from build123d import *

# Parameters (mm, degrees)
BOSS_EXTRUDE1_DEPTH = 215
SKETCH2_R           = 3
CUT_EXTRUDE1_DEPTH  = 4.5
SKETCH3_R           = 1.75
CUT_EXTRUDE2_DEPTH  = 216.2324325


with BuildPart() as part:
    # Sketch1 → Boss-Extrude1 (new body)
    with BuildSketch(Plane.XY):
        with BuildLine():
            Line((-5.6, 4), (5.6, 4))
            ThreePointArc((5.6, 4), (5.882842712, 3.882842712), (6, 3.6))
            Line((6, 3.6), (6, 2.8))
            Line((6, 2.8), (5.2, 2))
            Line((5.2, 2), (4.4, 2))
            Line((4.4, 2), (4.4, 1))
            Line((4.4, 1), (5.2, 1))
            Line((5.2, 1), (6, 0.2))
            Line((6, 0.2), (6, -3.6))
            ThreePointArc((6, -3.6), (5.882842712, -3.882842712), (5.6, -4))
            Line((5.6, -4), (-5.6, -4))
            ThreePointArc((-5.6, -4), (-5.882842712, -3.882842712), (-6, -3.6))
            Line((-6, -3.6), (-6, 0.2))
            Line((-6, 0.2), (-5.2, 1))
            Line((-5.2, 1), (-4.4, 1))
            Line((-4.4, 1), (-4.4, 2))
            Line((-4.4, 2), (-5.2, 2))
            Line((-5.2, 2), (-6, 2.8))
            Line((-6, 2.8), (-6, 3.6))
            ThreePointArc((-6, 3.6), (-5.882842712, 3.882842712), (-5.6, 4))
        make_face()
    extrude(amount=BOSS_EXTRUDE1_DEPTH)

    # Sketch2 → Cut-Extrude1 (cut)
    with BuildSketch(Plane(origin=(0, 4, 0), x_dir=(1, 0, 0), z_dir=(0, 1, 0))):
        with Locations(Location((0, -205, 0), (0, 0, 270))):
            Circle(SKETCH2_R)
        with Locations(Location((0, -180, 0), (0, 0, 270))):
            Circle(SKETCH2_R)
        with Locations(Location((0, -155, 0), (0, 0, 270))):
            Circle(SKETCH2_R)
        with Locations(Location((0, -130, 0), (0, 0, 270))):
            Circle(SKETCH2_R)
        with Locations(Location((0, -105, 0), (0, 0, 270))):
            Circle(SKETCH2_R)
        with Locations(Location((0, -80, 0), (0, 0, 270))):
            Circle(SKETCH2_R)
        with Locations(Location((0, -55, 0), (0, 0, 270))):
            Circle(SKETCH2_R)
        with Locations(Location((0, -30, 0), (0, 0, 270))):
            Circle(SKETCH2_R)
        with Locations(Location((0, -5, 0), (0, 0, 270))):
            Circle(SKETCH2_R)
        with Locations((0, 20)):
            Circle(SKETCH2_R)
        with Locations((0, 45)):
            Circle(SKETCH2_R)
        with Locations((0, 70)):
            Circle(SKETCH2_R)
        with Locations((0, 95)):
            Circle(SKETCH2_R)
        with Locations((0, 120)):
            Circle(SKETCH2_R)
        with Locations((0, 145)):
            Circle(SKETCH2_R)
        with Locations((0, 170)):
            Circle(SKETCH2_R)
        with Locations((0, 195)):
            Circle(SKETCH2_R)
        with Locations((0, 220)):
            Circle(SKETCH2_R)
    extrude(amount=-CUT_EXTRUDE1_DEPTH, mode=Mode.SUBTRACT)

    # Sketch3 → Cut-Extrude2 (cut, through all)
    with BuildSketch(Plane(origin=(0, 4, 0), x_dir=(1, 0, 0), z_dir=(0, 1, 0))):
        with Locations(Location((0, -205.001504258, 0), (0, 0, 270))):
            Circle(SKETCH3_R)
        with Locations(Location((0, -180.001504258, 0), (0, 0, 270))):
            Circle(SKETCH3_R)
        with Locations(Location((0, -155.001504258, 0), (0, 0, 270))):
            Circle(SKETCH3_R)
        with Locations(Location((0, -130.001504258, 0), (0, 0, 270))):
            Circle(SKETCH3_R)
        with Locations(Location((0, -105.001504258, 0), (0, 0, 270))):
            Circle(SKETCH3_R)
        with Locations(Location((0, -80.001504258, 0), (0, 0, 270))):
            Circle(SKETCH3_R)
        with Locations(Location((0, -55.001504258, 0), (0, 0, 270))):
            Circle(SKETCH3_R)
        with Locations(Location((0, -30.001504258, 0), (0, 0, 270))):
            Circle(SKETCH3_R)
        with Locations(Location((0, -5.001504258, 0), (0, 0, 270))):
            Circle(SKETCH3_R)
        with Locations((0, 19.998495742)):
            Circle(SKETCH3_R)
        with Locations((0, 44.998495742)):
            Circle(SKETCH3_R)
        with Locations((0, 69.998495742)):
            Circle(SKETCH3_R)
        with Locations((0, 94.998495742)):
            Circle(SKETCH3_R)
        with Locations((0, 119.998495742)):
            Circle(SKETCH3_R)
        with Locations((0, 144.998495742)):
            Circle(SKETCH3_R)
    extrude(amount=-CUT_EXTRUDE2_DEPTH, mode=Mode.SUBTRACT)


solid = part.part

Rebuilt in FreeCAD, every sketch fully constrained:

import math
import FreeCAD as App
import Part
import Sketcher
Q = App.Units.Quantity

doc = App.newDocument("Part")
params = doc.addObject("Spreadsheet::Sheet", "Params")
for row, (alias, value) in enumerate([
    ("sketch1_radius", "0.4 mm"),
    ("sketch1_height", "1 mm"),
    ("sketch1_width", "11.2 mm"),
    ("sketch1_width2", "0.8 mm"),
    ("sketch1_height2", "3.8 mm"),
    ("pad1_length", "215 mm"),
    ("sketch2_diameter", "6 mm"),
    ("pocket1_length", "4.5 mm"),
    ("sketch3_diameter", "3.5 mm"),
], start=1):
    params.set(f"A{row}", alias)
    params.set(f"B{row}", "=" + value)
    params.setAlias(f"B{row}", alias)

body = doc.addObject("PartDesign::Body", "Body")

sketch1 = body.newObject("Sketcher::SketchObject", "Sketch")
sketch1.AttachmentSupport = (doc.getObject("XY_Plane"), [""])
sketch1.MapMode = "FlatFace"
sketch1.addGeometry(Part.LineSegment(App.Vector(5.6, 4, 0), App.Vector(-5.6, 4, 0)), False)
sketch1.addGeometry(Part.ArcOfCircle(Part.Circle(App.Vector(-5.6, 3.6, 0), App.Vector(0, 0, 1), 0.4), math.radians(90), math.radians(180)), False)
sketch1.addGeometry(Part.LineSegment(App.Vector(-6, 3.6, 0), App.Vector(-6, 2.8, 0)), False)
sketch1.addGeometry(Part.LineSegment(App.Vector(-6, 2.8, 0), App.Vector(-5.2, 2, 0)), False)
sketch1.addGeometry(Part.LineSegment(App.Vector(-5.2, 2, 0), App.Vector(-4.4, 2, 0)), False)
sketch1.addGeometry(Part.LineSegment(App.Vector(-4.4, 2, 0), App.Vector(-4.4, 1, 0)), False)
sketch1.addGeometry(Part.LineSegment(App.Vector(-4.4, 1, 0), App.Vector(-5.2, 1, 0)), False)
sketch1.addGeometry(Part.LineSegment(App.Vector(-5.2, 1, 0), App.Vector(-6, 0.2, 0)), False)
sketch1.addGeometry(Part.LineSegment(App.Vector(-6, 0.2, 0), App.Vector(-6, -3.6, 0)), False)
sketch1.addGeometry(Part.ArcOfCircle(Part.Circle(App.Vector(-5.6, -3.6, 0), App.Vector(0, 0, 1), 0.4), math.radians(-180), math.radians(-90)), False)
sketch1.addGeometry(Part.LineSegment(App.Vector(-5.6, -4, 0), App.Vector(5.6, -4, 0)), False)
sketch1.addGeometry(Part.ArcOfCircle(Part.Circle(App.Vector(5.6, -3.6, 0), App.Vector(0, 0, 1), 0.4), math.radians(-90), math.radians(0)), False)
sketch1.addGeometry(Part.LineSegment(App.Vector(6, -3.6, 0), App.Vector(6, 0.2, 0)), False)
sketch1.addGeometry(Part.LineSegment(App.Vector(6, 0.2, 0), App.Vector(5.2, 1, 0)), False)
sketch1.addGeometry(Part.LineSegment(App.Vector(5.2, 1, 0), App.Vector(4.4, 1, 0)), False)
sketch1.addGeometry(Part.LineSegment(App.Vector(4.4, 1, 0), App.Vector(4.4, 2, 0)), False)
sketch1.addGeometry(Part.LineSegment(App.Vector(4.4, 2, 0), App.Vector(5.2, 2, 0)), False)
sketch1.addGeometry(Part.LineSegment(App.Vector(5.2, 2, 0), App.Vector(6, 2.8, 0)), False)
sketch1.addGeometry(Part.LineSegment(App.Vector(6, 2.8, 0), App.Vector(6, 3.6, 0)), False)
sketch1.addGeometry(Part.ArcOfCircle(Part.Circle(App.Vector(5.6, 3.6, 0), App.Vector(0, 0, 1), 0.4), math.radians(0), math.radians(90)), False)
sketch1.addConstraint(Sketcher.Constraint("Tangent", 0, 2, 1, 1))
sketch1.addConstraint(Sketcher.Constraint("Tangent", 1, 2, 2, 1))
sketch1.addConstraint(Sketcher.Constraint("Coincident", 2, 2, 3, 1))
sketch1.addConstraint(Sketcher.Constraint("Coincident", 3, 2, 4, 1))
sketch1.addConstraint(Sketcher.Constraint("Coincident", 4, 2, 5, 1))
sketch1.addConstraint(Sketcher.Constraint("Coincident", 5, 2, 6, 1))
sketch1.addConstraint(Sketcher.Constraint("Coincident", 6, 2, 7, 1))
sketch1.addConstraint(Sketcher.Constraint("Coincident", 7, 2, 8, 1))
sketch1.addConstraint(Sketcher.Constraint("Tangent", 8, 2, 9, 1))
sketch1.addConstraint(Sketcher.Constraint("Tangent", 9, 2, 10, 1))
sketch1.addConstraint(Sketcher.Constraint("Tangent", 10, 2, 11, 1))
sketch1.addConstraint(Sketcher.Constraint("Tangent", 11, 2, 12, 1))
sketch1.addConstraint(Sketcher.Constraint("Coincident", 12, 2, 13, 1))
sketch1.addConstraint(Sketcher.Constraint("Coincident", 13, 2, 14, 1))
sketch1.addConstraint(Sketcher.Constraint("Coincident", 14, 2, 15, 1))
sketch1.addConstraint(Sketcher.Constraint("Coincident", 15, 2, 16, 1))
sketch1.addConstraint(Sketcher.Constraint("Coincident", 16, 2, 17, 1))
sketch1.addConstraint(Sketcher.Constraint("Coincident", 17, 2, 18, 1))
sketch1.addConstraint(Sketcher.Constraint("Tangent", 18, 2, 19, 1))
sketch1.addConstraint(Sketcher.Constraint("Tangent", 19, 2, 0, 1))
sketch1.addConstraint(Sketcher.Constraint("Horizontal", 0))
sketch1.addConstraint(Sketcher.Constraint("Vertical", 2))
sketch1.addConstraint(Sketcher.Constraint("Horizontal", 4))
sketch1.addConstraint(Sketcher.Constraint("Vertical", 5))
sketch1.addConstraint(Sketcher.Constraint("Horizontal", 6))
sketch1.addConstraint(Sketcher.Constraint("Vertical", 8))
sketch1.addConstraint(Sketcher.Constraint("Horizontal", 10))
sketch1.addConstraint(Sketcher.Constraint("Vertical", 12))
sketch1.addConstraint(Sketcher.Constraint("Horizontal", 14))
sketch1.addConstraint(Sketcher.Constraint("Vertical", 15))
sketch1.addConstraint(Sketcher.Constraint("Horizontal", 16))
sketch1.addConstraint(Sketcher.Constraint("Vertical", 18))
sketch1.addConstraint(Sketcher.Constraint("Equal", 1, 9))
sketch1.addConstraint(Sketcher.Constraint("Equal", 9, 11))
sketch1.addConstraint(Sketcher.Constraint("Equal", 11, 19))
sketch1.addConstraint(Sketcher.Constraint("Symmetric", 1, 3, 11, 3, -1, 1))
sketch1.addConstraint(Sketcher.Constraint("Symmetric", 7, 2, 12, 2, -2))
sketch1.addConstraint(Sketcher.Constraint("Symmetric", 6, 2, 13, 2, -2))
sketch1.addConstraint(Sketcher.Constraint("Symmetric", 4, 2, 15, 2, -2))
sketch1.addConstraint(Sketcher.Constraint("Symmetric", 2, 2, 17, 2, -2))
sketch1.addConstraint(Sketcher.Constraint("Perpendicular", 3, 7))
sketch1.addConstraint(Sketcher.Constraint("Perpendicular", 7, 13))
sketch1.addConstraint(Sketcher.Constraint("Perpendicular", 13, 17))
sketch1.addConstraint(Sketcher.Constraint("Vertical", 3, 2, 6, 2))
sketch1.addConstraint(Sketcher.Constraint("Equal", 16, 2))
sketch1.addConstraint(Sketcher.Constraint("Radius", 1, Q("0.4 mm")))
sketch1.addConstraint(Sketcher.Constraint("DistanceY", 5, 2, 5, 1, Q("1 mm")))
sketch1.addConstraint(Sketcher.Constraint("DistanceX", 0, 2, 0, 1, Q("11.2 mm")))
sketch1.addConstraint(Sketcher.Constraint("DistanceX", 4, 1, 4, 2, Q("0.8 mm")))
sketch1.addConstraint(Sketcher.Constraint("DistanceY", 8, 2, 8, 1, Q("3.8 mm")))
sketch1.addConstraint(Sketcher.Constraint("DistanceY", -1, 1, 0, 2, Q("4 mm")))
sketch1.setExpression("Constraints[45]", "Params.sketch1_radius")
sketch1.setExpression("Constraints[46]", "Params.sketch1_height")
sketch1.setExpression("Constraints[47]", "Params.sketch1_width")
sketch1.setExpression("Constraints[48]", "Params.sketch1_width2")
sketch1.setExpression("Constraints[49]", "Params.sketch1_height2")
pad1 = body.newObject("PartDesign::Pad", "Pad")
pad1.Profile = sketch1
pad1.setExpression("Length", "Params.pad1_length")

sketch2 = body.newObject("Sketcher::SketchObject", "Sketch001")
sketch2.AttachmentSupport = (doc.getObject("XZ_Plane"), [""])
sketch2.MapMode = "FlatFace"
sketch2.AttachmentOffset = App.Placement(App.Vector(0, 0, -4), App.Rotation())
sketch2.addGeometry(Part.Circle(App.Vector(0, 205, 0), App.Vector(0, 0, 1), 3), False)
sketch2.addGeometry(Part.Circle(App.Vector(0, 180, 0), App.Vector(0, 0, 1), 3), False)
sketch2.addGeometry(Part.Circle(App.Vector(0, 155, 0), App.Vector(0, 0, 1), 3), False)
sketch2.addGeometry(Part.Circle(App.Vector(0, 130, 0), App.Vector(0, 0, 1), 3), False)
sketch2.addGeometry(Part.Circle(App.Vector(0, 105, 0), App.Vector(0, 0, 1), 3), False)
sketch2.addGeometry(Part.Circle(App.Vector(0, 80, 0), App.Vector(0, 0, 1), 3), False)
sketch2.addGeometry(Part.Circle(App.Vector(0, 55, 0), App.Vector(0, 0, 1), 3), False)
sketch2.addGeometry(Part.Circle(App.Vector(0, 30, 0), App.Vector(0, 0, 1), 3), False)
sketch2.addGeometry(Part.Circle(App.Vector(0, 5, 0), App.Vector(0, 0, 1), 3), False)
sketch2.addGeometry(Part.Circle(App.Vector(0, -20, 0), App.Vector(0, 0, 1), 3), False)
sketch2.addGeometry(Part.Circle(App.Vector(0, -45, 0), App.Vector(0, 0, 1), 3), False)
sketch2.addGeometry(Part.Circle(App.Vector(0, -70, 0), App.Vector(0, 0, 1), 3), False)
sketch2.addGeometry(Part.Circle(App.Vector(0, -95, 0), App.Vector(0, 0, 1), 3), False)
sketch2.addGeometry(Part.Circle(App.Vector(0, -120, 0), App.Vector(0, 0, 1), 3), False)
sketch2.addGeometry(Part.Circle(App.Vector(0, -145, 0), App.Vector(0, 0, 1), 3), False)
sketch2.addGeometry(Part.Circle(App.Vector(0, -170, 0), App.Vector(0, 0, 1), 3), False)
sketch2.addGeometry(Part.Circle(App.Vector(0, -195, 0), App.Vector(0, 0, 1), 3), False)
sketch2.addGeometry(Part.Circle(App.Vector(0, -220, 0), App.Vector(0, 0, 1), 3), False)
sketch2.addConstraint(Sketcher.Constraint("Equal", 0, 1))
sketch2.addConstraint(Sketcher.Constraint("Equal", 1, 2))
sketch2.addConstraint(Sketcher.Constraint("Equal", 2, 3))
sketch2.addConstraint(Sketcher.Constraint("Equal", 3, 4))
sketch2.addConstraint(Sketcher.Constraint("Equal", 4, 5))
sketch2.addConstraint(Sketcher.Constraint("Equal", 5, 6))
sketch2.addConstraint(Sketcher.Constraint("Equal", 6, 7))
sketch2.addConstraint(Sketcher.Constraint("Equal", 7, 8))
sketch2.addConstraint(Sketcher.Constraint("Equal", 8, 9))
sketch2.addConstraint(Sketcher.Constraint("Equal", 9, 10))
sketch2.addConstraint(Sketcher.Constraint("Equal", 10, 11))
sketch2.addConstraint(Sketcher.Constraint("Equal", 11, 12))
sketch2.addConstraint(Sketcher.Constraint("Equal", 12, 13))
sketch2.addConstraint(Sketcher.Constraint("Equal", 13, 14))
sketch2.addConstraint(Sketcher.Constraint("Equal", 14, 15))
sketch2.addConstraint(Sketcher.Constraint("Equal", 15, 16))
sketch2.addConstraint(Sketcher.Constraint("Equal", 16, 17))
sketch2.addConstraint(Sketcher.Constraint("PointOnObject", 0, 3, -2))
sketch2.addConstraint(Sketcher.Constraint("PointOnObject", 1, 3, -2))
sketch2.addConstraint(Sketcher.Constraint("PointOnObject", 2, 3, -2))
sketch2.addConstraint(Sketcher.Constraint("PointOnObject", 3, 3, -2))
sketch2.addConstraint(Sketcher.Constraint("PointOnObject", 4, 3, -2))
sketch2.addConstraint(Sketcher.Constraint("PointOnObject", 5, 3, -2))
sketch2.addConstraint(Sketcher.Constraint("PointOnObject", 6, 3, -2))
sketch2.addConstraint(Sketcher.Constraint("PointOnObject", 7, 3, -2))
sketch2.addConstraint(Sketcher.Constraint("PointOnObject", 8, 3, -2))
sketch2.addConstraint(Sketcher.Constraint("PointOnObject", 9, 3, -2))
sketch2.addConstraint(Sketcher.Constraint("PointOnObject", 10, 3, -2))
sketch2.addConstraint(Sketcher.Constraint("PointOnObject", 11, 3, -2))
sketch2.addConstraint(Sketcher.Constraint("PointOnObject", 12, 3, -2))
sketch2.addConstraint(Sketcher.Constraint("PointOnObject", 13, 3, -2))
sketch2.addConstraint(Sketcher.Constraint("PointOnObject", 14, 3, -2))
sketch2.addConstraint(Sketcher.Constraint("PointOnObject", 15, 3, -2))
sketch2.addConstraint(Sketcher.Constraint("PointOnObject", 16, 3, -2))
sketch2.addConstraint(Sketcher.Constraint("PointOnObject", 17, 3, -2))
sketch2.addConstraint(Sketcher.Constraint("Diameter", 0, Q("6 mm")))
sketch2.addConstraint(Sketcher.Constraint("DistanceY", -1, 1, 0, 3, Q("205 mm")))
sketch2.addConstraint(Sketcher.Constraint("DistanceY", -1, 1, 1, 3, Q("180 mm")))
sketch2.addConstraint(Sketcher.Constraint("DistanceY", -1, 1, 2, 3, Q("155 mm")))
sketch2.addConstraint(Sketcher.Constraint("DistanceY", -1, 1, 3, 3, Q("130 mm")))
sketch2.addConstraint(Sketcher.Constraint("DistanceY", -1, 1, 4, 3, Q("105 mm")))
sketch2.addConstraint(Sketcher.Constraint("DistanceY", -1, 1, 5, 3, Q("80 mm")))
sketch2.addConstraint(Sketcher.Constraint("DistanceY", -1, 1, 6, 3, Q("55 mm")))
sketch2.addConstraint(Sketcher.Constraint("DistanceY", -1, 1, 7, 3, Q("30 mm")))
sketch2.addConstraint(Sketcher.Constraint("DistanceY", -1, 1, 8, 3, Q("5 mm")))
sketch2.addConstraint(Sketcher.Constraint("DistanceY", 9, 3, -1, 1, Q("20 mm")))
sketch2.addConstraint(Sketcher.Constraint("DistanceY", 10, 3, -1, 1, Q("45 mm")))
sketch2.addConstraint(Sketcher.Constraint("DistanceY", 11, 3, -1, 1, Q("70 mm")))
sketch2.addConstraint(Sketcher.Constraint("DistanceY", 12, 3, -1, 1, Q("95 mm")))
sketch2.addConstraint(Sketcher.Constraint("DistanceY", 13, 3, -1, 1, Q("120 mm")))
sketch2.addConstraint(Sketcher.Constraint("DistanceY", 14, 3, -1, 1, Q("145 mm")))
sketch2.addConstraint(Sketcher.Constraint("DistanceY", 15, 3, -1, 1, Q("170 mm")))
sketch2.addConstraint(Sketcher.Constraint("DistanceY", 16, 3, -1, 1, Q("195 mm")))
sketch2.addConstraint(Sketcher.Constraint("DistanceY", 17, 3, -1, 1, Q("220 mm")))
sketch2.setExpression("Constraints[35]", "Params.sketch2_diameter")
pocket1 = body.newObject("PartDesign::Pocket", "Pocket")
pocket1.Profile = sketch2
pocket1.setExpression("Length", "Params.pocket1_length")
pocket1.Reversed = True

sketch3 = body.newObject("Sketcher::SketchObject", "Sketch002")
sketch3.AttachmentSupport = (doc.getObject("XZ_Plane"), [""])
sketch3.MapMode = "FlatFace"
sketch3.AttachmentOffset = App.Placement(App.Vector(0, 0, -4), App.Rotation())
sketch3.addGeometry(Part.Circle(App.Vector(0, 205, 0), App.Vector(0, 0, 1), 1.8), False)
sketch3.addGeometry(Part.Circle(App.Vector(0, 180, 0), App.Vector(0, 0, 1), 1.8), False)
sketch3.addGeometry(Part.Circle(App.Vector(0, 155, 0), App.Vector(0, 0, 1), 1.8), False)
sketch3.addGeometry(Part.Circle(App.Vector(0, 130, 0), App.Vector(0, 0, 1), 1.8), False)
sketch3.addGeometry(Part.Circle(App.Vector(0, 105, 0), App.Vector(0, 0, 1), 1.8), False)
sketch3.addGeometry(Part.Circle(App.Vector(0, 80, 0), App.Vector(0, 0, 1), 1.8), False)
sketch3.addGeometry(Part.Circle(App.Vector(0, 55, 0), App.Vector(0, 0, 1), 1.8), False)
sketch3.addGeometry(Part.Circle(App.Vector(0, 30, 0), App.Vector(0, 0, 1), 1.8), False)
sketch3.addGeometry(Part.Circle(App.Vector(0, 5, 0), App.Vector(0, 0, 1), 1.8), False)
sketch3.addGeometry(Part.Circle(App.Vector(0, -20, 0), App.Vector(0, 0, 1), 1.8), False)
sketch3.addGeometry(Part.Circle(App.Vector(0, -45, 0), App.Vector(0, 0, 1), 1.8), False)
sketch3.addGeometry(Part.Circle(App.Vector(0, -70, 0), App.Vector(0, 0, 1), 1.8), False)
sketch3.addGeometry(Part.Circle(App.Vector(0, -95, 0), App.Vector(0, 0, 1), 1.8), False)
sketch3.addGeometry(Part.Circle(App.Vector(0, -120, 0), App.Vector(0, 0, 1), 1.8), False)
sketch3.addGeometry(Part.Circle(App.Vector(0, -145, 0), App.Vector(0, 0, 1), 1.8), False)
sketch3.addConstraint(Sketcher.Constraint("Equal", 0, 1))
sketch3.addConstraint(Sketcher.Constraint("Equal", 1, 2))
sketch3.addConstraint(Sketcher.Constraint("Equal", 2, 3))
sketch3.addConstraint(Sketcher.Constraint("Equal", 3, 4))
sketch3.addConstraint(Sketcher.Constraint("Equal", 4, 5))
sketch3.addConstraint(Sketcher.Constraint("Equal", 5, 6))
sketch3.addConstraint(Sketcher.Constraint("Equal", 6, 7))
sketch3.addConstraint(Sketcher.Constraint("Equal", 7, 8))
sketch3.addConstraint(Sketcher.Constraint("Equal", 8, 9))
sketch3.addConstraint(Sketcher.Constraint("Equal", 9, 10))
sketch3.addConstraint(Sketcher.Constraint("Equal", 10, 11))
sketch3.addConstraint(Sketcher.Constraint("Equal", 11, 12))
sketch3.addConstraint(Sketcher.Constraint("Equal", 12, 13))
sketch3.addConstraint(Sketcher.Constraint("Equal", 13, 14))
sketch3.addConstraint(Sketcher.Constraint("PointOnObject", 0, 3, -2))
sketch3.addConstraint(Sketcher.Constraint("PointOnObject", 1, 3, -2))
sketch3.addConstraint(Sketcher.Constraint("PointOnObject", 2, 3, -2))
sketch3.addConstraint(Sketcher.Constraint("PointOnObject", 3, 3, -2))
sketch3.addConstraint(Sketcher.Constraint("PointOnObject", 4, 3, -2))
sketch3.addConstraint(Sketcher.Constraint("PointOnObject", 5, 3, -2))
sketch3.addConstraint(Sketcher.Constraint("PointOnObject", 6, 3, -2))
sketch3.addConstraint(Sketcher.Constraint("PointOnObject", 7, 3, -2))
sketch3.addConstraint(Sketcher.Constraint("PointOnObject", 8, 3, -2))
sketch3.addConstraint(Sketcher.Constraint("PointOnObject", 9, 3, -2))
sketch3.addConstraint(Sketcher.Constraint("PointOnObject", 10, 3, -2))
sketch3.addConstraint(Sketcher.Constraint("PointOnObject", 11, 3, -2))
sketch3.addConstraint(Sketcher.Constraint("PointOnObject", 12, 3, -2))
sketch3.addConstraint(Sketcher.Constraint("PointOnObject", 13, 3, -2))
sketch3.addConstraint(Sketcher.Constraint("PointOnObject", 14, 3, -2))
sketch3.addConstraint(Sketcher.Constraint("Diameter", 0, Q("3.5 mm")))
sketch3.addConstraint(Sketcher.Constraint("DistanceY", 1, 3, 0, 3, Q("25 mm")))
sketch3.addConstraint(Sketcher.Constraint("DistanceY", 2, 3, 1, 3, Q("25 mm")))
sketch3.addConstraint(Sketcher.Constraint("DistanceY", 3, 3, 2, 3, Q("25 mm")))
sketch3.addConstraint(Sketcher.Constraint("DistanceY", 4, 3, 3, 3, Q("25 mm")))
sketch3.addConstraint(Sketcher.Constraint("DistanceY", 5, 3, 4, 3, Q("25 mm")))
sketch3.addConstraint(Sketcher.Constraint("DistanceY", 6, 3, 5, 3, Q("25 mm")))
sketch3.addConstraint(Sketcher.Constraint("DistanceY", 7, 3, 6, 3, Q("25 mm")))
sketch3.addConstraint(Sketcher.Constraint("DistanceY", 8, 3, 7, 3, Q("25 mm")))
sketch3.addConstraint(Sketcher.Constraint("DistanceY", 9, 3, 8, 3, Q("25 mm")))
sketch3.addConstraint(Sketcher.Constraint("DistanceY", 10, 3, 9, 3, Q("25 mm")))
sketch3.addConstraint(Sketcher.Constraint("DistanceY", 11, 3, 10, 3, Q("25 mm")))
sketch3.addConstraint(Sketcher.Constraint("DistanceY", 12, 3, 11, 3, Q("25 mm")))
sketch3.addConstraint(Sketcher.Constraint("DistanceY", 13, 3, 12, 3, Q("25 mm")))
sketch3.addConstraint(Sketcher.Constraint("DistanceY", 14, 3, 13, 3, Q("25 mm")))
sketch3.addConstraint(Sketcher.Constraint("DistanceY", -1, 1, 0, 3, Q("205.001504 mm")))
sketch3.setExpression("Constraints[29]", "Params.sketch3_diameter")
pocket2 = body.newObject("PartDesign::Pocket", "Pocket001")
pocket2.Profile = sketch3
pocket2.Type = "ThroughAll"
pocket2.Reversed = True

doc.recompute()
